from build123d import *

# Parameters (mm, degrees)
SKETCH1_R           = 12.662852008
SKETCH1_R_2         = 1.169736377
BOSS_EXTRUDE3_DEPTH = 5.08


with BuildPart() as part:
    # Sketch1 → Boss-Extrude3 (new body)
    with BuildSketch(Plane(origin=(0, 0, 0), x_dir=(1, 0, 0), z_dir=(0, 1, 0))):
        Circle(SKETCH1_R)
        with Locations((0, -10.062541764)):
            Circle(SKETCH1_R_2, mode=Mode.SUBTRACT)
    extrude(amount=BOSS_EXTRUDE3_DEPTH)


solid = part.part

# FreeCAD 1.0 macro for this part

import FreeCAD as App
import Part
import Sketcher

V = App.Vector
Q = App.Units.Quantity

doc = App.newDocument("Part")
params = doc.addObject("Spreadsheet::Sheet", "Params")
for row, (alias, value) in enumerate([
    ("pad1_length", "0.2 in"),
], start=1):
    params.set(f"A{row}", alias)
    params.set(f"B{row}", "=" + value)
    params.setAlias(f"B{row}", alias)

body = doc.addObject("PartDesign::Body", "Body")

sketch1 = body.newObject("Sketcher::SketchObject", "Sketch")
sketch1.AttachmentSupport = (doc.getObject("XZ_Plane"), [""])
sketch1.MapMode = "FlatFace"
sketch1.addGeometry(Part.Circle(V(0, 0, 0), V(0, 0, 1), 12.7), False)
sketch1.addGeometry(Part.Circle(V(0, 10.1, 0), V(0, 0, 1), 1.2), False)
sketch1.addConstraint(Sketcher.Constraint("Coincident", 0, 3, -1, 1))
sketch1.addConstraint(Sketcher.Constraint("PointOnObject", 1, 3, -2))
sketch1.addConstraint(Sketcher.Constraint("Diameter", 0, Q("25.325704 mm")))
sketch1.addConstraint(Sketcher.Constraint("Diameter", 1, Q("2.339473 mm")))
sketch1.addConstraint(Sketcher.Constraint("DistanceY", -1, 1, 1, 3, Q("10.062542 mm")))
pad1 = body.newObject("PartDesign::Pad", "Pad")
pad1.Profile = sketch1
pad1.setExpression("Length", "Params.pad1_length")
pad1.Reversed = True

doc.recompute()
